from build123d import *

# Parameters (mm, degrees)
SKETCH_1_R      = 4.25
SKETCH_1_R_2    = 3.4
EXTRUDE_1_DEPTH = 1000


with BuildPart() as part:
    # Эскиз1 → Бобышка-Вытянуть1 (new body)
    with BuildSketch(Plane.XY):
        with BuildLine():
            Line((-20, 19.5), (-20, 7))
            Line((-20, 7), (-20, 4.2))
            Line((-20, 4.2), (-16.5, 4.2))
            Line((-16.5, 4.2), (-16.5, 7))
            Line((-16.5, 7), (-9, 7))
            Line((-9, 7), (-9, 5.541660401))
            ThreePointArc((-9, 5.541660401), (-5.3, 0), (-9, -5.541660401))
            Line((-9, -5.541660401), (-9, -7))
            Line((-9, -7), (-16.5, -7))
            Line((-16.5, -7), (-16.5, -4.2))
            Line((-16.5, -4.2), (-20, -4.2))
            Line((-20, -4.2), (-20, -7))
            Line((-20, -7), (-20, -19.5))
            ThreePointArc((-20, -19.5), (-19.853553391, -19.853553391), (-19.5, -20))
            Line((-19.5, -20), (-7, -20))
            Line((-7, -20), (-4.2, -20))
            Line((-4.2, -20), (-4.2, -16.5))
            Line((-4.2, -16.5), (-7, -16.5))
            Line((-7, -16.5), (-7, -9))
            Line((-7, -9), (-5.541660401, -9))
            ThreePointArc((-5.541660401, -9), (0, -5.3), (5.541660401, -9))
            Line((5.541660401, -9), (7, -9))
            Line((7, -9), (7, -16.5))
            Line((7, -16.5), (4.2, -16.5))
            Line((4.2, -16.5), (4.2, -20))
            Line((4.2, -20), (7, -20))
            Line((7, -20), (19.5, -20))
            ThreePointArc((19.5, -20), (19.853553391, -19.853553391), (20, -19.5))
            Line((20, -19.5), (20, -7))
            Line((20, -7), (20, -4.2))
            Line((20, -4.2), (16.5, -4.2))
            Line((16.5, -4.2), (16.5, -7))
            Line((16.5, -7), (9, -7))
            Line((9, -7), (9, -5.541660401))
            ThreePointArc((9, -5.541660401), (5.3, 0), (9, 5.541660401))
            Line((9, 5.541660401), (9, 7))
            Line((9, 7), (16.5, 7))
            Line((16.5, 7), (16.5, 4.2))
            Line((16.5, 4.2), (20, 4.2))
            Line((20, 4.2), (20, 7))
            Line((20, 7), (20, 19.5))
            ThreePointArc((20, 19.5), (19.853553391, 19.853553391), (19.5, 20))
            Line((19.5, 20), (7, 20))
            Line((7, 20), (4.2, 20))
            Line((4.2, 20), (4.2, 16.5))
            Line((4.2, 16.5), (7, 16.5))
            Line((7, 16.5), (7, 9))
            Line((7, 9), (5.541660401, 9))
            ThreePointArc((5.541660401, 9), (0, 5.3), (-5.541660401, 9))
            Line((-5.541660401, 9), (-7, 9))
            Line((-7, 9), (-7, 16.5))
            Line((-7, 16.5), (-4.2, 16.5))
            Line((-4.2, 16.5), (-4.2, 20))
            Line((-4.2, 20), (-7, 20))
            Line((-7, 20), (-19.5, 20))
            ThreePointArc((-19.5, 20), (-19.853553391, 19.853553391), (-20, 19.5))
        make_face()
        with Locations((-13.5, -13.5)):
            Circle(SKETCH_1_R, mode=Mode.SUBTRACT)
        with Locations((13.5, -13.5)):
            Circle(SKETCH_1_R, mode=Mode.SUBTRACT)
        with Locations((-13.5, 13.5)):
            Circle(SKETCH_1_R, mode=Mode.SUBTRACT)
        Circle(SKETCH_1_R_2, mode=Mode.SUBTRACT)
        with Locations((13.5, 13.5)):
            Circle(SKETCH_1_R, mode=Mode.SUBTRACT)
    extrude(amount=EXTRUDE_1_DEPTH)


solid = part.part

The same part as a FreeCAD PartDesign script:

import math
import FreeCAD as App
import Part
import Sketcher

V = App.Vector

doc = App.newDocument("Part")
params = doc.addObject("Spreadsheet::Sheet", "Params")
for row, (alias, value) in enumerate([
    ("sketch1_radius", "6 mm"),
    ("sketch1_diameter", "8.5 mm"),
    ("sketch1_diameter2", "6.8 mm"),
    ("sketch1_radius2", "0.5 mm"),
    ("sketch1_width", "3.5 mm"),
    ("pad1_length", "1000 mm"),
], start=1):
    params.set(f"A{row}", alias)
    params.set(f"B{row}", "=" + value)
    params.setAlias(f"B{row}", alias)

body = doc.addObject("PartDesign::Body", "Body")

sketch1 = body.newObject("Sketcher::SketchObject", "Sketch")
sketch1.AttachmentSupport = (doc.getObject("XY_Plane"), [""])
sketch1.MapMode = "FlatFace"
sketch1.addGeometry(Part.LineSegment(V(-20, 19.5, 0), V(-20, 4.2, 0)), False)
sketch1.addGeometry(Part.LineSegment(V(-20, 4.2, 0), V(-16.5, 4.2, 0)), False)
sketch1.addGeometry(Part.LineSegment(V(-16.5, 4.2, 0), V(-16.5, 7, 0)), False)
sketch1.addGeometry(Part.LineSegment(V(-16.5, 7, 0), V(-9, 7, 0)), False)
sketch1.addGeometry(Part.LineSegment(V(-9, 7, 0), V(-9, 5.54, 0)), False)
sketch1.addGeometry(Part.ArcOfCircle(Part.Circle(V(-11.3, 0, 0), V(0, 0, 1), 6), math.radians(-67), math.radians(67)), False)
sketch1.addGeometry(Part.LineSegment(V(-9, -5.54, 0), V(-9, -7, 0)), False)
sketch1.addGeometry(Part.LineSegment(V(-9, -7, 0), V(-16.5, -7, 0)), False)
sketch1.addGeometry(Part.LineSegment(V(-16.5, -7, 0), V(-16.5, -4.2, 0)), False)
sketch1.addGeometry(Part.LineSegment(V(-16.5, -4.2, 0), V(-20, -4.2, 0)), False)
sketch1.addGeometry(Part.LineSegment(V(-20, -4.2, 0), V(-20, -19.5, 0)), False)
sketch1.addGeometry(Part.ArcOfCircle(Part.Circle(V(-19.5, -19.5, 0), V(0, 0, 1), 0.5), math.radians(180), math.radians(270)), False)
sketch1.addGeometry(Part.LineSegment(V(-19.5, -20, 0), V(-4.2, -20, 0)), False)
sketch1.addGeometry(Part.LineSegment(V(-4.2, -20, 0), V(-4.2, -16.5, 0)), False)
sketch1.addGeometry(Part.LineSegment(V(-4.2, -16.5, 0), V(-7, -16.5, 0)), False)
sketch1.addGeometry(Part.LineSegment(V(-7, -16.5, 0), V(-7, -9, 0)), False)
sketch1.addGeometry(Part.LineSegment(V(-7, -9, 0), V(-5.54, -9, 0)), False)
sketch1.addGeometry(Part.ArcOfCircle(Part.Circle(V(0, -11.3, 0), V(0, 0, 1), 6), math.radians(23), math.radians(157)), False)
sketch1.addGeometry(Part.LineSegment(V(5.54, -9, 0), V(7, -9, 0)), False)
sketch1.addGeometry(Part.LineSegment(V(7, -9, 0), V(7, -16.5, 0)), False)
sketch1.addGeometry(Part.LineSegment(V(7, -16.5, 0), V(4.2, -16.5, 0)), False)
sketch1.addGeometry(Part.LineSegment(V(4.2, -16.5, 0), V(4.2, -20, 0)), False)
sketch1.addGeometry(Part.LineSegment(V(4.2, -20, 0), V(19.5, -20, 0)), False)
sketch1.addGeometry(Part.ArcOfCircle(Part.Circle(V(19.5, -19.5, 0), V(0, 0, 1), 0.5), math.radians(-90), math.radians(0)), False)
sketch1.addGeometry(Part.LineSegment(V(20, -19.5, 0), V(20, -4.2, 0)), False)
sketch1.addGeometry(Part.LineSegment(V(20, -4.2, 0), V(16.5, -4.2, 0)), False)
sketch1.addGeometry(Part.LineSegment(V(16.5, -4.2, 0), V(16.5, -7, 0)), False)
sketch1.addGeometry(Part.LineSegment(V(16.5, -7, 0), V(9, -7, 0)), False)
sketch1.addGeometry(Part.LineSegment(V(9, -7, 0), V(9, -5.54, 0)), False)
sketch1.addGeometry(Part.ArcOfCircle(Part.Circle(V(11.3, 0, 0), V(0, 0, 1), 6), math.radians(113), math.radians(247)), False)
sketch1.addGeometry(Part.LineSegment(V(9, 5.54, 0), V(9, 7, 0)), False)
sketch1.addGeometry(Part.LineSegment(V(9, 7, 0), V(16.5, 7, 0)), False)
sketch1.addGeometry(Part.LineSegment(V(16.5, 7, 0), V(16.5, 4.2, 0)), False)
sketch1.addGeometry(Part.LineSegment(V(16.5, 4.2, 0), V(20, 4.2, 0)), False)
sketch1.addGeometry(Part.LineSegment(V(20, 4.2, 0), V(20, 19.5, 0)), False)
sketch1.addGeometry(Part.ArcOfCircle(Part.Circle(V(19.5, 19.5, 0), V(0, 0, 1), 0.5), math.radians(0), math.radians(90)), False)
sketch1.addGeometry(Part.LineSegment(V(19.5, 20, 0), V(4.2, 20, 0)), False)
sketch1.addGeometry(Part.LineSegment(V(4.2, 20, 0), V(4.2, 16.5, 0)), False)
sketch1.addGeometry(Part.LineSegment(V(4.2, 16.5, 0), V(7, 16.5, 0)), False)
sketch1.addGeometry(Part.LineSegment(V(7, 16.5, 0), V(7, 9, 0)), False)
sketch1.addGeometry(Part.LineSegment(V(7, 9, 0), V(5.54, 9, 0)), False)
sketch1.addGeometry(Part.ArcOfCircle(Part.Circle(V(0, 11.3, 0), V(0, 0, 1), 6), math.radians(-157), math.radians(-23)), False)
sketch1.addGeometry(Part.LineSegment(V(-5.54, 9, 0), V(-7, 9, 0)), False)
sketch1.addGeometry(Part.LineSegment(V(-7, 9, 0), V(-7, 16.5, 0)), False)
sketch1.addGeometry(Part.LineSegment(V(-7, 16.5, 0), V(-4.2, 16.5, 0)), False)
sketch1.addGeometry(Part.LineSegment(V(-4.2, 16.5, 0), V(-4.2, 20, 0)), False)
sketch1.addGeometry(Part.LineSegment(V(-4.2, 20, 0), V(-19.5, 20, 0)), False)
sketch1.addGeometry(Part.ArcOfCircle(Part.Circle(V(-19.5, 19.5, 0), V(0, 0, 1), 0.5), math.radians(90), math.radians(180)), False)
sketch1.addGeometry(Part.Circle(V(-13.5, -13.5, 0), V(0, 0, 1), 4.25), False)
sketch1.addGeometry(Part.Circle(V(13.5, -13.5, 0), V(0, 0, 1), 4.25), False)
sketch1.addGeometry(Part.Circle(V(-13.5, 13.5, 0), V(0, 0, 1), 4.25), False)
sketch1.addGeometry(Part.Circle(V(0, 0, 0), V(0, 0, 1), 3.4), False)
sketch1.addGeometry(Part.Circle(V(13.5, 13.5, 0), V(0, 0, 1), 4.25), False)
sketch1.addConstraint(Sketcher.Constraint("Coincident", 0, 2, 1, 1))
sketch1.addConstraint(Sketcher.Constraint("Coincident", 1, 2, 2, 1))
sketch1.addConstraint(Sketcher.Constraint("Coincident", 2, 2, 3, 1))
sketch1.addConstraint(Sketcher.Constraint("Coincident", 3, 2, 4, 1))
sketch1.addConstraint(Sketcher.Constraint("Coincident", 4, 2, 5, 2))
sketch1.addConstraint(Sketcher.Constraint("Coincident", 5, 1, 6, 1))
sketch1.addConstraint(Sketcher.Constraint("Coincident", 6, 2, 7, 1))
sketch1.addConstraint(Sketcher.Constraint("Coincident", 7, 2, 8, 1))
sketch1.addConstraint(Sketcher.Constraint("Coincident", 8, 2, 9, 1))
sketch1.addConstraint(Sketcher.Constraint("Coincident", 9, 2, 10, 1))
sketch1.addConstraint(Sketcher.Constraint("Tangent", 10, 2, 11, 1))
sketch1.addConstraint(Sketcher.Constraint("Tangent", 11, 2, 12, 1))
sketch1.addConstraint(Sketcher.Constraint("Coincident", 12, 2, 13, 1))
sketch1.addConstraint(Sketcher.Constraint("Coincident", 13, 2, 14, 1))
sketch1.addConstraint(Sketcher.Constraint("Coincident", 14, 2, 15, 1))
sketch1.addConstraint(Sketcher.Constraint("Coincident", 15, 2, 16, 1))
sketch1.addConstraint(Sketcher.Constraint("Coincident", 16, 2, 17, 2))
sketch1.addConstraint(Sketcher.Constraint("Coincident", 17, 1, 18, 1))
sketch1.addConstraint(Sketcher.Constraint("Coincident", 18, 2, 19, 1))
sketch1.addConstraint(Sketcher.Constraint("Coincident", 19, 2, 20, 1))
sketch1.addConstraint(Sketcher.Constraint("Coincident", 20, 2, 21, 1))
sketch1.addConstraint(Sketcher.Constraint("Coincident", 21, 2, 22, 1))
sketch1.addConstraint(Sketcher.Constraint("Tangent", 22, 2, 23, 1))
sketch1.addConstraint(Sketcher.Constraint("Tangent", 23, 2, 24, 1))
sketch1.addConstraint(Sketcher.Constraint("Coincident", 24, 2, 25, 1))
sketch1.addConstraint(Sketcher.Constraint("Coincident", 25, 2, 26, 1))
sketch1.addConstraint(Sketcher.Constraint("Coincident", 26, 2, 27, 1))
sketch1.addConstraint(Sketcher.Constraint("Coincident", 27, 2, 28, 1))
sketch1.addConstraint(Sketcher.Constraint("Coincident", 28, 2, 29, 2))
sketch1.addConstraint(Sketcher.Constraint("Coincident", 29, 1, 30, 1))
sketch1.addConstraint(Sketcher.Constraint("Coincident", 30, 2, 31, 1))
sketch1.addConstraint(Sketcher.Constraint("Coincident", 31, 2, 32, 1))
sketch1.addConstraint(Sketcher.Constraint("Coincident", 32, 2, 33, 1))
sketch1.addConstraint(Sketcher.Constraint("Coincident", 33, 2, 34, 1))
sketch1.addConstraint(Sketcher.Constraint("Tangent", 34, 2, 35, 1))
sketch1.addConstraint(Sketcher.Constraint("Tangent", 35, 2, 36, 1))
sketch1.addConstraint(Sketcher.Constraint("Coincident", 36, 2, 37, 1))
sketch1.addConstraint(Sketcher.Constraint("Coincident", 37, 2, 38, 1))
sketch1.addConstraint(Sketcher.Constraint("Coincident", 38, 2, 39, 1))
sketch1.addConstraint(Sketcher.Constraint("Coincident", 39, 2, 40, 1))
sketch1.addConstraint(Sketcher.Constraint("Coincident", 40, 2, 41, 2))
sketch1.addConstraint(Sketcher.Constraint("Coincident", 41, 1, 42, 1))
sketch1.addConstraint(Sketcher.Constraint("Coincident", 42, 2, 43, 1))
sketch1.addConstraint(Sketcher.Constraint("Coincident", 43, 2, 44, 1))
sketch1.addConstraint(Sketcher.Constraint("Coincident", 44, 2, 45, 1))
sketch1.addConstraint(Sketcher.Constraint("Coincident", 45, 2, 46, 1))
sketch1.addConstraint(Sketcher.Constraint("Tangent", 46, 2, 47, 1))
sketch1.addConstraint(Sketcher.Constraint("Tangent", 47, 2, 0, 1))
sketch1.addConstraint(Sketcher.Constraint("Vertical", 0))
sketch1.addConstraint(Sketcher.Constraint("Horizontal", 1))
sketch1.addConstraint(Sketcher.Constraint("Vertical", 2))
sketch1.addConstraint(Sketcher.Constraint("Horizontal", 3))
sketch1.addConstraint(Sketcher.Constraint("Vertical", 4))
sketch1.addConstraint(Sketcher.Constraint("Vertical", 6))
sketch1.addConstraint(Sketcher.Constraint("Horizontal", 7))
sketch1.addConstraint(Sketcher.Constraint("Vertical", 8))
sketch1.addConstraint(Sketcher.Constraint("Horizontal", 9))
sketch1.addConstraint(Sketcher.Constraint("Vertical", 10))
sketch1.addConstraint(Sketcher.Constraint("Horizontal", 12))
sketch1.addConstraint(Sketcher.Constraint("Vertical", 13))
sketch1.addConstraint(Sketcher.Constraint("Horizontal", 14))
sketch1.addConstraint(Sketcher.Constraint("Vertical", 15))
sketch1.addConstraint(Sketcher.Constraint("Horizontal", 16))
sketch1.addConstraint(Sketcher.Constraint("Horizontal", 18))
sketch1.addConstraint(Sketcher.Constraint("Vertical", 19))
sketch1.addConstraint(Sketcher.Constraint("Horizontal", 20))
sketch1.addConstraint(Sketcher.Constraint("Vertical", 21))
sketch1.addConstraint(Sketcher.Constraint("Horizontal", 22))
sketch1.addConstraint(Sketcher.Constraint("Vertical", 24))
sketch1.addConstraint(Sketcher.Constraint("Horizontal", 25))
sketch1.addConstraint(Sketcher.Constraint("Vertical", 26))
sketch1.addConstraint(Sketcher.Constraint("Horizontal", 27))
sketch1.addConstraint(Sketcher.Constraint("Vertical", 28))
sketch1.addConstraint(Sketcher.Constraint("Vertical", 30))
sketch1.addConstraint(Sketcher.Constraint("Horizontal", 31))
sketch1.addConstraint(Sketcher.Constraint("Vertical", 32))
sketch1.addConstraint(Sketcher.Constraint("Horizontal", 33))
sketch1.addConstraint(Sketcher.Constraint("Vertical", 34))
sketch1.addConstraint(Sketcher.Constraint("Horizontal", 36))
sketch1.addConstraint(Sketcher.Constraint("Vertical", 37))
sketch1.addConstraint(Sketcher.Constraint("Horizontal", 38))
sketch1.addConstraint(Sketcher.Constraint("Vertical", 39))
sketch1.addConstraint(Sketcher.Constraint("Horizontal", 40))
sketch1.addConstraint(Sketcher.Constraint("Horizontal", 42))
sketch1.addConstraint(Sketcher.Constraint("Vertical", 43))
sketch1.addConstraint(Sketcher.Constraint("Horizontal", 44))
sketch1.addConstraint(Sketcher.Constraint("Vertical", 45))
sketch1.addConstraint(Sketcher.Constraint("Horizontal", 46))
sketch1.addConstraint(Sketcher.Constraint("Coincident", 51, 3, -1, 1))
sketch1.addConstraint(Sketcher.Constraint("Equal", 5, 17))
sketch1.addConstraint(Sketcher.Constraint("Equal", 11, 23))
sketch1.addConstraint(Sketcher.Constraint("Equal", 17, 29))
sketch1.addConstraint(Sketcher.Constraint("Equal", 23, 35))
sketch1.addConstraint(Sketcher.Constraint("Equal", 29, 41))
sketch1.addConstraint(Sketcher.Constraint("Equal", 35, 47))
sketch1.addConstraint(Sketcher.Constraint("Equal", 48, 49))
sketch1.addConstraint(Sketcher.Constraint("Equal", 49, 50))
sketch1.addConstraint(Sketcher.Constraint("Equal", 50, 52))
sketch1.addConstraint(Sketcher.Constraint("Symmetric", 5, 3, 29, 3, -1, 1))
sketch1.addConstraint(Sketcher.Constraint("Symmetric", 11, 3, 35, 3, -1, 1))
sketch1.addConstraint(Sketcher.Constraint("Symmetric", 17, 3, 41, 3, -1, 1))
sketch1.addConstraint(Sketcher.Constraint("Symmetric", 23, 3, 47, 3, -1, 1))
sketch1.addConstraint(Sketcher.Constraint("Symmetric", 49, 3, 50, 3, -1, 1))
sketch1.addConstraint(Sketcher.Constraint("Symmetric", 48, 3, 52, 3, -1, 1))
sketch1.addConstraint(Sketcher.Constraint("Symmetric", 1, 2, 25, 2, -1, 1))
sketch1.addConstraint(Sketcher.Constraint("Symmetric", 3, 2, 27, 2, -1, 1))
sketch1.addConstraint(Sketcher.Constraint("Symmetric", 6, 2, 30, 2, -1, 1))
sketch1.addConstraint(Sketcher.Constraint("Symmetric", 8, 2, 32, 2, -1, 1))
sketch1.addConstraint(Sketcher.Constraint("Symmetric", 13, 2, 37, 2, -1, 1))
sketch1.addConstraint(Sketcher.Constraint("Symmetric", 15, 2, 39, 2, -1, 1))
sketch1.addConstraint(Sketcher.Constraint("Symmetric", 18, 2, 42, 2, -1, 1))
sketch1.addConstraint(Sketcher.Constraint("Symmetric", 20, 2, 44, 2, -1, 1))
sketch1.addConstraint(Sketcher.Constraint("Symmetric", 11, 3, 23, 3, -2))
sketch1.addConstraint(Sketcher.Constraint("Symmetric", 48, 3, 49, 3, -2))
sketch1.addConstraint(Sketcher.Constraint("Symmetric", 16, 2, 17, 1, -2))
sketch1.addConstraint(Sketcher.Constraint("Symmetric", 14, 2, 19, 2, -2))
sketch1.addConstraint(Sketcher.Constraint("Symmetric", 8, 2, 25, 2, -2))
sketch1.addConstraint(Sketcher.Constraint("Symmetric", 6, 2, 27, 2, -2))
sketch1.addConstraint(Sketcher.Constraint("PointOnObject", 5, 3, -1))
sketch1.addConstraint(Sketcher.Constraint("Vertical", 21, 2, 36, 2))
sketch1.addConstraint(Sketcher.Constraint("Equal", 46, 0))
sketch1.addConstraint(Sketcher.Constraint("Equal", 44, 2))
sketch1.addConstraint(Sketcher.Constraint("Equal", 42, 4))
sketch1.addConstraint(Sketcher.Constraint("Equal", 33, 13))
sketch1.addConstraint(Sketcher.Constraint("Equal", 31, 15))
sketch1.addConstraint(Sketcher.Constraint("Radius", 5, 6.0))
sketch1.addConstraint(Sketcher.Constraint("Diameter", 48, 8.5))
sketch1.addConstraint(Sketcher.Constraint("Diameter", 51, 6.8))
sketch1.addConstraint(Sketcher.Constraint("Radius", 11, 0.5))
sketch1.addConstraint(Sketcher.Constraint("DistanceX", 1, 1, 1, 2, 3.5))
sketch1.addConstraint(Sketcher.Constraint("DistanceX", 3, 1, 3, 2, 7.5))
sketch1.addConstraint(Sketcher.Constraint("DistanceX", 12, 1, 12, 2, 15.3))
sketch1.addConstraint(Sketcher.Constraint("DistanceX", 14, 2, 14, 1, 2.8))
sketch1.addConstraint(Sketcher.Constraint("DistanceX", 0, 2, -1, 1, 20.0))
sketch1.addConstraint(Sketcher.Constraint("DistanceY", -1, 1, 2, 2, 7.0))
sketch1.addConstraint(Sketcher.Constraint("DistanceX", 5, 3, -1, 1, 11.3))
sketch1.addConstraint(Sketcher.Constraint("DistanceX", 48, 3, -1, 1, 13.5))
sketch1.addConstraint(Sketcher.Constraint("DistanceY", 48, 3, -1, 1, 13.5))
sketch1.setExpression("Constraints[125]", "Params.sketch1_radius")
sketch1.setExpression("Constraints[126]", "Params.sketch1_diameter")
sketch1.setExpression("Constraints[127]", "Params.sketch1_diameter2")
sketch1.setExpression("Constraints[128]", "Params.sketch1_radius2")
sketch1.setExpression("Constraints[129]", "Params.sketch1_width")
pad1 = body.newObject("PartDesign::Pad", "Pad")
pad1.Profile = sketch1
pad1.setExpression("Length", "Params.pad1_length")

doc.recompute()
